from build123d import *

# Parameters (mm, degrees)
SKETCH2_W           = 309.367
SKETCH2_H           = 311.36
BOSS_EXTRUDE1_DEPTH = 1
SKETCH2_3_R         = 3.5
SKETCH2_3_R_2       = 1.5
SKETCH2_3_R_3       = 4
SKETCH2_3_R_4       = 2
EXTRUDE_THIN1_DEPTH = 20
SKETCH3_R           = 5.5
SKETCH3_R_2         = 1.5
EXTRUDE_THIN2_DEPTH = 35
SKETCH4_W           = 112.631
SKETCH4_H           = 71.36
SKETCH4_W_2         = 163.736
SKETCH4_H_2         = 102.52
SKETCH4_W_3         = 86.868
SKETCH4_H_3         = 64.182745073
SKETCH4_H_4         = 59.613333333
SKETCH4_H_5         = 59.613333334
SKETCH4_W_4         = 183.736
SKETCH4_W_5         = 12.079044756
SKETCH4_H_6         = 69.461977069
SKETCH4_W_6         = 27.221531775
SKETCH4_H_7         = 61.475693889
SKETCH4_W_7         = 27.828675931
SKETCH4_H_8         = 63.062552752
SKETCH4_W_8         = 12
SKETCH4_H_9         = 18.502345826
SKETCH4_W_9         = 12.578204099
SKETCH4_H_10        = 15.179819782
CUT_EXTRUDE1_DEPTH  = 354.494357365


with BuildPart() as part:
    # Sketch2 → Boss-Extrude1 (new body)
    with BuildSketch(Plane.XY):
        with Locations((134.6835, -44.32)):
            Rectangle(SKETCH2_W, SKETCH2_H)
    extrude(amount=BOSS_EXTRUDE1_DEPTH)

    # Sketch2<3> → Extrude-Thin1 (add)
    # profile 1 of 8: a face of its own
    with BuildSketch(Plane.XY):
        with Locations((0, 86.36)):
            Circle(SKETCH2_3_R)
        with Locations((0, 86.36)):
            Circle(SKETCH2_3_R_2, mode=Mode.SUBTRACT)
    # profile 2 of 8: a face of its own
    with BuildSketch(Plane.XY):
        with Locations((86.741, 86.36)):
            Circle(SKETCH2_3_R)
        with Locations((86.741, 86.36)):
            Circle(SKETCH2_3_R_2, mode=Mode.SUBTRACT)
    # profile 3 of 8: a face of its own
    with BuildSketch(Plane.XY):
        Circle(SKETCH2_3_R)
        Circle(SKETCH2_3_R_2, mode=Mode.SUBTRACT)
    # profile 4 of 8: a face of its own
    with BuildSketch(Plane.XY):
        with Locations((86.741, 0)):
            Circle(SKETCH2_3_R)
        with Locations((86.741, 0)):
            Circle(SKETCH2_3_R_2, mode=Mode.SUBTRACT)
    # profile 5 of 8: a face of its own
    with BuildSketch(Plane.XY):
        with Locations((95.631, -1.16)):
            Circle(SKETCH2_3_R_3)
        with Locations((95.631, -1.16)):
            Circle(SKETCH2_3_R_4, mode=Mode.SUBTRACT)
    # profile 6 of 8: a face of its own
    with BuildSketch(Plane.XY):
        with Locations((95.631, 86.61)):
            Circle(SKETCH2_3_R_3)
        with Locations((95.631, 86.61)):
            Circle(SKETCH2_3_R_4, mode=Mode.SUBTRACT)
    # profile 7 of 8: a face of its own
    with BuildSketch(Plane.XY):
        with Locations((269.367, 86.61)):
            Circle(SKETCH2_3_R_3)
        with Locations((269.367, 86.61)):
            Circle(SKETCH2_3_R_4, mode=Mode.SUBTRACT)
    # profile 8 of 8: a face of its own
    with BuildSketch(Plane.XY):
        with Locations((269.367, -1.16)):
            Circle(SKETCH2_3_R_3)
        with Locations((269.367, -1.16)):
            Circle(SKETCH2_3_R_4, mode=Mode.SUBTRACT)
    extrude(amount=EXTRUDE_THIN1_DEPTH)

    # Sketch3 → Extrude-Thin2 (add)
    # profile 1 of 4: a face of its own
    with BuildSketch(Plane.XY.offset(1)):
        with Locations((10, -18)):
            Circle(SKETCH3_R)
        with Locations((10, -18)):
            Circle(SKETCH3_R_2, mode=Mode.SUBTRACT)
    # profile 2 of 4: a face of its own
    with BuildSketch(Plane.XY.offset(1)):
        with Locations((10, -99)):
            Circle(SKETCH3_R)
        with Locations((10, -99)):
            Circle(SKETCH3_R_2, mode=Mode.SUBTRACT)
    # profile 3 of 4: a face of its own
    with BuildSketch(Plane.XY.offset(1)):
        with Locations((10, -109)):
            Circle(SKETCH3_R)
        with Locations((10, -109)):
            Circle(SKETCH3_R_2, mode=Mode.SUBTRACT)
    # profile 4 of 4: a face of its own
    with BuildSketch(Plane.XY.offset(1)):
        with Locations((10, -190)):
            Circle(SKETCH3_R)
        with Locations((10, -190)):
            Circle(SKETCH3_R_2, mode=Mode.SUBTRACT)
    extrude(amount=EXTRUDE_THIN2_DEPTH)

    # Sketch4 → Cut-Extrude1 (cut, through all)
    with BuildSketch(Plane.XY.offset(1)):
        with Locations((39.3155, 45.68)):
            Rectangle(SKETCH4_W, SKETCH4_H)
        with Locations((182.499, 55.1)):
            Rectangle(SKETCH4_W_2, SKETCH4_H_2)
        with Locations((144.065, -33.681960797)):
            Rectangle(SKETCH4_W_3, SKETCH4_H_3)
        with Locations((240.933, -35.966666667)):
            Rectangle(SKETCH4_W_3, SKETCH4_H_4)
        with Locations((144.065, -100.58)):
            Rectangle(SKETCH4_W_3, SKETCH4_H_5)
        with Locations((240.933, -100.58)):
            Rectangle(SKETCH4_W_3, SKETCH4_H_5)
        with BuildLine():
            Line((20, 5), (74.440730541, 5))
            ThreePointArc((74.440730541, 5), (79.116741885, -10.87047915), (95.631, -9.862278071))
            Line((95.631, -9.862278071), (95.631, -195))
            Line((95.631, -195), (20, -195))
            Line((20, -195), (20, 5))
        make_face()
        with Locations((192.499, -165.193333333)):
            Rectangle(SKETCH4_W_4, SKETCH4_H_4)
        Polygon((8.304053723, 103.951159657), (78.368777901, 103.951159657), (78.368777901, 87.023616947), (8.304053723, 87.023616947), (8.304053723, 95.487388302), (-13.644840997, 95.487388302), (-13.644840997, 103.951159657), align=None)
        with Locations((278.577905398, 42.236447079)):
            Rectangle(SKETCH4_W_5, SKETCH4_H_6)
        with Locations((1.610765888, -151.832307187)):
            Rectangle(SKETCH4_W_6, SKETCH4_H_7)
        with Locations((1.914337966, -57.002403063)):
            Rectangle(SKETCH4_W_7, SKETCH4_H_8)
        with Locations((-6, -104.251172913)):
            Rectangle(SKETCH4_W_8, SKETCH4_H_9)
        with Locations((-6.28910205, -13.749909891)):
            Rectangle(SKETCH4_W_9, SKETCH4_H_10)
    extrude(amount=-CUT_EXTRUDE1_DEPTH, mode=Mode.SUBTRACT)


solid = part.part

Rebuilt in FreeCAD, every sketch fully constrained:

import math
import FreeCAD as App
import Part
import Sketcher
from FreeCAD import Vector

doc = App.newDocument("Part")
body = doc.addObject("PartDesign::Body", "Body")

# Sketch on XY plane
sketch1 = body.newObject("Sketcher::SketchObject", "Sketch")
sketch1.AttachmentSupport = (doc.getObject("XY_Plane"), [""])
sketch1.MapMode = "FlatFace"
sketch1.addGeometry([
    Part.LineSegment(Vector(-20, 111, 0), Vector(-20, -200, 0)),
    Part.LineSegment(Vector(-20, -200, 0), Vector(289, -200, 0)),
    Part.LineSegment(Vector(289, -200, 0), Vector(289, 111, 0)),
    Part.LineSegment(Vector(289, 111, 0), Vector(-20, 111, 0)),
], False)
sketch1.addConstraint([
    Sketcher.Constraint("Coincident", 0, 2, 1, 1),
    Sketcher.Constraint("Coincident", 1, 2, 2, 1),
    Sketcher.Constraint("Coincident", 2, 2, 3, 1),
    Sketcher.Constraint("Coincident", 3, 2, 0, 1),
    Sketcher.Constraint("Vertical", 0),
    Sketcher.Constraint("Horizontal", 1),
    Sketcher.Constraint("Vertical", 2),
    Sketcher.Constraint("Horizontal", 3),
    Sketcher.Constraint("DistanceX", 0, 2, -1, 1, 20.0),
    Sketcher.Constraint("DistanceY", 0, 2, -1, 1, 200.0),
    Sketcher.Constraint("DistanceY", 0, 2, 0, 1, 311.36),
    Sketcher.Constraint("DistanceX", 1, 1, 1, 2, 309.367),
])
pad1 = body.newObject("PartDesign::Pad", "Pad")
pad1.Profile = sketch1
pad1.Length = 1

# Sketch on XY plane
sketch2 = body.newObject("Sketcher::SketchObject", "Sketch001")
sketch2.AttachmentSupport = (doc.getObject("XY_Plane"), [""])
sketch2.MapMode = "FlatFace"
sketch2.addGeometry([
    Part.Circle(Vector(0, 86.4, 0), Vector(0, 0, 1), 3.5),  # 0
    Part.Circle(Vector(0, 86.4, 0), Vector(0, 0, 1), 1.5),  # 1
    Part.Circle(Vector(86.7, 86.4, 0), Vector(0, 0, 1), 3.5),  # 2
    Part.Circle(Vector(86.7, 86.4, 0), Vector(0, 0, 1), 1.5),  # 3
    Part.Circle(Vector(0, 0, 0), Vector(0, 0, 1), 3.5),  # 4
    Part.Circle(Vector(0, 0, 0), Vector(0, 0, 1), 1.5),  # 5
    Part.Circle(Vector(86.7, 0, 0), Vector(0, 0, 1), 3.5),  # 6
    Part.Circle(Vector(86.7, 0, 0), Vector(0, 0, 1), 1.5),  # 7
    Part.Circle(Vector(95.6, -1.2, 0), Vector(0, 0, 1), 4),  # 8
    Part.Circle(Vector(95.6, -1.2, 0), Vector(0, 0, 1), 2),  # 9
    Part.Circle(Vector(95.6, 86.6, 0), Vector(0, 0, 1), 4),  # 10
    Part.Circle(Vector(95.6, 86.6, 0), Vector(0, 0, 1), 2),  # 11
    Part.Circle(Vector(269.4, 86.6, 0), Vector(0, 0, 1), 4),  # 12
    Part.Circle(Vector(269.4, 86.6, 0), Vector(0, 0, 1), 2),  # 13
    Part.Circle(Vector(269.4, -1.2, 0), Vector(0, 0, 1), 4),  # 14
    Part.Circle(Vector(269.4, -1.2, 0), Vector(0, 0, 1), 2),  # 15
], False)
sketch2.addConstraint([
    Sketcher.Constraint("Coincident", 4, 3, -1, 1),
    Sketcher.Constraint("Coincident", 5, 3, -1, 1),
    Sketcher.Constraint("Coincident", 1, 3, 0, 3),
    Sketcher.Constraint("Coincident", 3, 3, 2, 3),
    Sketcher.Constraint("Coincident", 7, 3, 6, 3),
    Sketcher.Constraint("Coincident", 9, 3, 8, 3),
    Sketcher.Constraint("Coincident", 11, 3, 10, 3),
    Sketcher.Constraint("Coincident", 13, 3, 12, 3),
    Sketcher.Constraint("Coincident", 15, 3, 14, 3),
    Sketcher.Constraint("Equal", 0, 2),
    Sketcher.Constraint("Equal", 1, 3),
    Sketcher.Constraint("Equal", 2, 4),
    Sketcher.Constraint("Equal", 3, 5),
    Sketcher.Constraint("Equal", 4, 6),
    Sketcher.Constraint("Equal", 5, 7),
    Sketcher.Constraint("Equal", 8, 10),
    Sketcher.Constraint("Equal", 9, 11),
    Sketcher.Constraint("Equal", 10, 12),
    Sketcher.Constraint("Equal", 11, 13),
    Sketcher.Constraint("Equal", 12, 14),
    Sketcher.Constraint("Equal", 13, 15),
    Sketcher.Constraint("PointOnObject", 0, 3, -2),
    Sketcher.Constraint("PointOnObject", 6, 3, -1),
    Sketcher.Constraint("Horizontal", 1, 3, 2, 3),
    Sketcher.Constraint("Horizontal", 11, 3, 12, 3),
    Sketcher.Constraint("Horizontal", 9, 3, 14, 3),
    Sketcher.Constraint("Vertical", 3, 3, 6, 3),
    Sketcher.Constraint("Vertical", 9, 3, 10, 3),
    Sketcher.Constraint("Vertical", 13, 3, 14, 3),
    Sketcher.Constraint("Diameter", 0, 7.0),
    Sketcher.Constraint("Diameter", 1, 3.0),
    Sketcher.Constraint("Diameter", 8, 8.0),
    Sketcher.Constraint("Diameter", 9, 4.0),
    Sketcher.Constraint("DistanceY", -1, 1, 0, 3, 86.36),
    Sketcher.Constraint("DistanceY", 8, 3, -1, 1, 1.16),
    Sketcher.Constraint("DistanceY", -1, 1, 10, 3, 86.61),
    Sketcher.Constraint("DistanceX", 6, 3, 8, 3, 8.89),
    Sketcher.Constraint("DistanceX", -1, 1, 2, 3, 86.741),
    Sketcher.Constraint("DistanceX", -1, 1, 12, 3, 269.367),
])
pad2 = body.newObject("PartDesign::Pad", "Pad001")
pad2.Profile = sketch2
pad2.Length = 20

# Sketch on XY plane
sketch3 = body.newObject("Sketcher::SketchObject", "Sketch002")
sketch3.AttachmentSupport = (doc.getObject("XY_Plane"), [""])
sketch3.MapMode = "FlatFace"
sketch3.AttachmentOffset = App.Placement(Vector(0, 0, 1), App.Rotation())
sketch3.addGeometry([
    Part.Circle(Vector(10, -18, 0), Vector(0, 0, 1), 5.5),  # 0
    Part.Circle(Vector(10, -18, 0), Vector(0, 0, 1), 1.5),  # 1
    Part.ArcOfCircle(Part.Circle(Vector(10, -99, 0), Vector(0, 0, 1), 5.5), math.radians(-65), math.radians(245)),  # 2
    Part.ArcOfCircle(Part.Circle(Vector(10, -109, 0), Vector(0, 0, 1), 5.5), math.radians(115), math.radians(425)),  # 3
    Part.Circle(Vector(10, -99, 0), Vector(0, 0, 1), 1.5),  # 4
    Part.Circle(Vector(10, -109, 0), Vector(0, 0, 1), 1.5),  # 5
    Part.Circle(Vector(10, -190, 0), Vector(0, 0, 1), 5.5),  # 6
    Part.Circle(Vector(10, -190, 0), Vector(0, 0, 1), 1.5),  # 7
], False)
sketch3.addConstraint([
    Sketcher.Constraint("Coincident", 2, 1, 3, 2),
    Sketcher.Constraint("Coincident", 3, 1, 2, 2),
    Sketcher.Constraint("Coincident", 1, 3, 0, 3),
    Sketcher.Constraint("Coincident", 4, 3, 2, 3),
    Sketcher.Constraint("Coincident", 5, 3, 3, 3),
    Sketcher.Constraint("Coincident", 7, 3, 6, 3),
    Sketcher.Constraint("Equal", 0, 2),
    Sketcher.Constraint("Equal", 2, 3),
    Sketcher.Constraint("Equal", 1, 4),
    Sketcher.Constraint("Equal", 4, 5),
    Sketcher.Constraint("Equal", 3, 6),
    Sketcher.Constraint("Equal", 5, 7),
    Sketcher.Constraint("Horizontal", 2, 1, 3, 1),
    Sketcher.Constraint("Vertical", 1, 3, 2, 3),
    Sketcher.Constraint("Vertical", 5, 3, 6, 3),
    Sketcher.Constraint("Diameter", 0, 11.0),
    Sketcher.Constraint("Diameter", 1, 3.0),
    Sketcher.Constraint("DistanceX", -1, 1, 0, 3, 10.0),
    Sketcher.Constraint("DistanceY", 0, 3, -1, 1, 18.0),
    Sketcher.Constraint("DistanceY", 2, 3, -1, 1, 99.0),
    Sketcher.Constraint("DistanceY", 3, 3, -1, 1, 109.0),
    Sketcher.Constraint("DistanceY", 6, 3, -1, 1, 190.0),
])
pad3 = body.newObject("PartDesign::Pad", "Pad002")
pad3.Profile = sketch3
pad3.Length = 35

# Sketch on XY plane
sketch4 = body.newObject("Sketcher::SketchObject", "Sketch003")
sketch4.AttachmentSupport = (doc.getObject("XY_Plane"), [""])
sketch4.MapMode = "FlatFace"
sketch4.AttachmentOffset = App.Placement(Vector(0, 0, 1), App.Rotation())
sketch4.addGeometry([
    Part.LineSegment(Vector(-17, 81, 0), Vector(-17, 10, 0)),  # 0
    Part.LineSegment(Vector(-17, 10, 0), Vector(96, 10, 0)),  # 1
    Part.LineSegment(Vector(96, 10, 0), Vector(96, 81, 0)),  # 2
    Part.LineSegment(Vector(96, 81, 0), Vector(-17, 81, 0)),  # 3
    Part.LineSegment(Vector(101, 106, 0), Vector(101, 4, 0)),  # 4
    Part.LineSegment(Vector(101, 4, 0), Vector(264, 4, 0)),  # 5
    Part.LineSegment(Vector(264, 4, 0), Vector(264, 106, 0)),  # 6
    Part.LineSegment(Vector(264, 106, 0), Vector(101, 106, 0)),  # 7
    Part.LineSegment(Vector(101, -2, 0), Vector(101, -66, 0)),  # 8
    Part.LineSegment(Vector(101, -66, 0), Vector(187, -66, 0)),  # 9
    Part.LineSegment(Vector(187, -66, 0), Vector(187, -2, 0)),  # 10
    Part.LineSegment(Vector(187, -2, 0), Vector(101, -2, 0)),  # 11
    Part.LineSegment(Vector(197, -6, 0), Vector(197, -66, 0)),  # 12
    Part.LineSegment(Vector(197, -66, 0), Vector(284, -66, 0)),  # 13
    Part.LineSegment(Vector(284, -66, 0), Vector(284, -6, 0)),  # 14
    Part.LineSegment(Vector(284, -6, 0), Vector(197, -6, 0)),  # 15
    Part.LineSegment(Vector(101, -71, 0), Vector(101, -130, 0)),  # 16
    Part.LineSegment(Vector(101, -130, 0), Vector(187, -130, 0)),  # 17
    Part.LineSegment(Vector(187, -130, 0), Vector(187, -71, 0)),  # 18
    Part.LineSegment(Vector(187, -71, 0), Vector(101, -71, 0)),  # 19
    Part.LineSegment(Vector(197, -71, 0), Vector(197, -130, 0)),  # 20
    Part.LineSegment(Vector(197, -130, 0), Vector(284, -130, 0)),  # 21
    Part.LineSegment(Vector(284, -130, 0), Vector(284, -71, 0)),  # 22
    Part.LineSegment(Vector(284, -71, 0), Vector(197, -71, 0)),  # 23
    Part.LineSegment(Vector(74, 5, 0), Vector(20, 5, 0)),  # 24
    Part.LineSegment(Vector(20, 5, 0), Vector(20, -195, 0)),  # 25
    Part.LineSegment(Vector(20, -195, 0), Vector(96, -195, 0)),  # 26
    Part.LineSegment(Vector(96, -195, 0), Vector(96, -10, 0)),  # 27
    Part.ArcOfCircle(Part.Circle(Vector(87, 0, 0), Vector(0, 0, 1), 13), math.radians(158), math.radians(312)),  # 28
    Part.LineSegment(Vector(101, -135, 0), Vector(101, -195, 0)),  # 29
    Part.LineSegment(Vector(101, -195, 0), Vector(284, -195, 0)),  # 30
    Part.LineSegment(Vector(284, -195, 0), Vector(284, -135, 0)),  # 31
    Part.LineSegment(Vector(284, -135, 0), Vector(101, -135, 0)),  # 32
    Part.LineSegment(Vector(78, 104, 0), Vector(-14, 104, 0)),  # 33
    Part.LineSegment(Vector(-14, 104, 0), Vector(-14, 95, 0)),  # 34
    Part.LineSegment(Vector(-14, 95, 0), Vector(8, 95, 0)),  # 35
    Part.LineSegment(Vector(8, 95, 0), Vector(8, 87, 0)),  # 36
    Part.LineSegment(Vector(8, 87, 0), Vector(78, 87, 0)),  # 37
    Part.LineSegment(Vector(78, 87, 0), Vector(78, 104, 0)),  # 38
    Part.LineSegment(Vector(273, 77, 0), Vector(273, 8, 0)),  # 39
    Part.LineSegment(Vector(273, 8, 0), Vector(285, 8, 0)),  # 40
    Part.LineSegment(Vector(285, 8, 0), Vector(285, 77, 0)),  # 41
    Part.LineSegment(Vector(285, 77, 0), Vector(273, 77, 0)),  # 42
    Part.LineSegment(Vector(-12, -121, 0), Vector(-12, -183, 0)),  # 43
    Part.LineSegment(Vector(-12, -183, 0), Vector(15, -183, 0)),  # 44
    Part.LineSegment(Vector(15, -183, 0), Vector(15, -121, 0)),  # 45
    Part.LineSegment(Vector(15, -121, 0), Vector(-12, -121, 0)),  # 46
    Part.LineSegment(Vector(-12, -25, 0), Vector(-12, -89, 0)),  # 47
    Part.LineSegment(Vector(-12, -89, 0), Vector(16, -89, 0)),  # 48
    Part.LineSegment(Vector(16, -89, 0), Vector(16, -25, 0)),  # 49
    Part.LineSegment(Vector(16, -25, 0), Vector(-12, -25, 0)),  # 50
    Part.LineSegment(Vector(-12, -95, 0), Vector(-12, -114, 0)),  # 51
    Part.LineSegment(Vector(-12, -114, 0), Vector(0, -114, 0)),  # 52
    Part.LineSegment(Vector(0, -114, 0), Vector(0, -95, 0)),  # 53
    Part.LineSegment(Vector(0, -95, 0), Vector(-12, -95, 0)),  # 54
    Part.LineSegment(Vector(-13, -6, 0), Vector(-13, -21, 0)),  # 55
    Part.LineSegment(Vector(-13, -21, 0), Vector(0, -21, 0)),  # 56
    Part.LineSegment(Vector(0, -21, 0), Vector(0, -6, 0)),  # 57
    Part.LineSegment(Vector(0, -6, 0), Vector(-13, -6, 0)),  # 58
], False)
sketch4.addConstraint([
    Sketcher.Constraint("Coincident", 0, 2, 1, 1),
    Sketcher.Constraint("Coincident", 1, 2, 2, 1),
    Sketcher.Constraint("Coincident", 2, 2, 3, 1),
    Sketcher.Constraint("Coincident", 3, 2, 0, 1),
    Sketcher.Constraint("Coincident", 4, 2, 5, 1),
    Sketcher.Constraint("Coincident", 5, 2, 6, 1),
    Sketcher.Constraint("Coincident", 6, 2, 7, 1),
    Sketcher.Constraint("Coincident", 7, 2, 4, 1),
    Sketcher.Constraint("Coincident", 8, 2, 9, 1),
    Sketcher.Constraint("Coincident", 9, 2, 10, 1),
    Sketcher.Constraint("Coincident", 10, 2, 11, 1),
    Sketcher.Constraint("Coincident", 11, 2, 8, 1),
    Sketcher.Constraint("Coincident", 12, 2, 13, 1),
    Sketcher.Constraint("Coincident", 13, 2, 14, 1),
    Sketcher.Constraint("Coincident", 14, 2, 15, 1),
    Sketcher.Constraint("Coincident", 15, 2, 12, 1),
    Sketcher.Constraint("Coincident", 16, 2, 17, 1),
    Sketcher.Constraint("Coincident", 17, 2, 18, 1),
    Sketcher.Constraint("Coincident", 18, 2, 19, 1),
    Sketcher.Constraint("Coincident", 19, 2, 16, 1),
    Sketcher.Constraint("Coincident", 20, 2, 21, 1),
    Sketcher.Constraint("Coincident", 21, 2, 22, 1),
    Sketcher.Constraint("Coincident", 22, 2, 23, 1),
    Sketcher.Constraint("Coincident", 23, 2, 20, 1),
    Sketcher.Constraint("Coincident", 24, 2, 25, 1),
    Sketcher.Constraint("Coincident", 25, 2, 26, 1),
    Sketcher.Constraint("Coincident", 26, 2, 27, 1),
    Sketcher.Constraint("Coincident", 27, 2, 28, 2),
    Sketcher.Constraint("Coincident", 28, 1, 24, 1),
    Sketcher.Constraint("Coincident", 29, 2, 30, 1),
    Sketcher.Constraint("Coincident", 30, 2, 31, 1),
    Sketcher.Constraint("Coincident", 31, 2, 32, 1),
    Sketcher.Constraint("Coincident", 32, 2, 29, 1),
    Sketcher.Constraint("Coincident", 33, 2, 34, 1),
    Sketcher.Constraint("Coincident", 34, 2, 35, 1),
    Sketcher.Constraint("Coincident", 35, 2, 36, 1),
    Sketcher.Constraint("Coincident", 36, 2, 37, 1),
    Sketcher.Constraint("Coincident", 37, 2, 38, 1),
    Sketcher.Constraint("Coincident", 38, 2, 33, 1),
    Sketcher.Constraint("Coincident", 39, 2, 40, 1),
    Sketcher.Constraint("Coincident", 40, 2, 41, 1),
    Sketcher.Constraint("Coincident", 41, 2, 42, 1),
    Sketcher.Constraint("Coincident", 42, 2, 39, 1),
    Sketcher.Constraint("Coincident", 43, 2, 44, 1),
    Sketcher.Constraint("Coincident", 44, 2, 45, 1),
    Sketcher.Constraint("Coincident", 45, 2, 46, 1),
    Sketcher.Constraint("Coincident", 46, 2, 43, 1),
    Sketcher.Constraint("Coincident", 47, 2, 48, 1),
    Sketcher.Constraint("Coincident", 48, 2, 49, 1),
    Sketcher.Constraint("Coincident", 49, 2, 50, 1),
    Sketcher.Constraint("Coincident", 50, 2, 47, 1),
    Sketcher.Constraint("Coincident", 51, 2, 52, 1),
    Sketcher.Constraint("Coincident", 52, 2, 53, 1),
    Sketcher.Constraint("Coincident", 53, 2, 54, 1),
    Sketcher.Constraint("Coincident", 54, 2, 51, 1),
    Sketcher.Constraint("Coincident", 55, 2, 56, 1),
    Sketcher.Constraint("Coincident", 56, 2, 57, 1),
    Sketcher.Constraint("Coincident", 57, 2, 58, 1),
    Sketcher.Constraint("Coincident", 58, 2, 55, 1),
    Sketcher.Constraint("Vertical", 0),
    Sketcher.Constraint("Horizontal", 1),
    Sketcher.Constraint("Vertical", 2),
    Sketcher.Constraint("Horizontal", 3),
    Sketcher.Constraint("Vertical", 4),
    Sketcher.Constraint("Horizontal", 5),
    Sketcher.Constraint("Vertical", 6),
    Sketcher.Constraint("Horizontal", 7),
    Sketcher.Constraint("Vertical", 8),
    Sketcher.Constraint("Horizontal", 9),
    Sketcher.Constraint("Vertical", 10),
    Sketcher.Constraint("Horizontal", 11),
    Sketcher.Constraint("Vertical", 12),
    Sketcher.Constraint("Horizontal", 13),
    Sketcher.Constraint("Vertical", 14),
    Sketcher.Constraint("Horizontal", 15),
    Sketcher.Constraint("Vertical", 16),
    Sketcher.Constraint("Horizontal", 17),
    Sketcher.Constraint("Vertical", 18),
    Sketcher.Constraint("Horizontal", 19),
    Sketcher.Constraint("Vertical", 20),
    Sketcher.Constraint("Horizontal", 21),
    Sketcher.Constraint("Vertical", 22),
    Sketcher.Constraint("Horizontal", 23),
    Sketcher.Constraint("Horizontal", 24),
    Sketcher.Constraint("Vertical", 25),
    Sketcher.Constraint("Horizontal", 26),
    Sketcher.Constraint("Vertical", 27),
    Sketcher.Constraint("Vertical", 29),
    Sketcher.Constraint("Horizontal", 30),
    Sketcher.Constraint("Vertical", 31),
    Sketcher.Constraint("Horizontal", 32),
    Sketcher.Constraint("Horizontal", 33),
    Sketcher.Constraint("Vertical", 34),
    Sketcher.Constraint("Horizontal", 35),
    Sketcher.Constraint("Vertical", 36),
    Sketcher.Constraint("Horizontal", 37),
    Sketcher.Constraint("Vertical", 38),
    Sketcher.Constraint("Vertical", 39),
    Sketcher.Constraint("Horizontal", 40),
    Sketcher.Constraint("Vertical", 41),
    Sketcher.Constraint("Horizontal", 42),
    Sketcher.Constraint("Vertical", 43),
    Sketcher.Constraint("Horizontal", 44),
    Sketcher.Constraint("Vertical", 45),
    Sketcher.Constraint("Horizontal", 46),
    Sketcher.Constraint("Vertical", 47),
    Sketcher.Constraint("Horizontal", 48),
    Sketcher.Constraint("Vertical", 49),
    Sketcher.Constraint("Horizontal", 50),
    Sketcher.Constraint("Vertical", 51),
    Sketcher.Constraint("Horizontal", 52),
    Sketcher.Constraint("Vertical", 53),
    Sketcher.Constraint("Horizontal", 54),
    Sketcher.Constraint("Vertical", 55),
    Sketcher.Constraint("Horizontal", 56),
    Sketcher.Constraint("Vertical", 57),
    Sketcher.Constraint("Horizontal", 58),
    Sketcher.Constraint("PointOnObject", 28, 3, -1),
    Sketcher.Constraint("PointOnObject", 52, 2, -2),
    Sketcher.Constraint("PointOnObject", 56, 2, -2),
    Sketcher.Constraint("Horizontal", 9, 2, 12, 2),
    Sketcher.Constraint("Horizontal", 17, 2, 20, 2),
    Sketcher.Constraint("Horizontal", 19, 2, 22, 2),
    Sketcher.Constraint("Horizontal", 26, 2, 29, 2),
    Sketcher.Constraint("Horizontal", 15, 2, 57, 2),
    Sketcher.Constraint("Vertical", 7, 2, 8, 2),
    Sketcher.Constraint("Vertical", 11, 2, 16, 2),
    Sketcher.Constraint("Vertical", 10, 2, 17, 2),
    Sketcher.Constraint("Vertical", 15, 2, 20, 2),
    Sketcher.Constraint("Vertical", 14, 2, 21, 2),
    Sketcher.Constraint("Vertical", 2, 2, 26, 2),
    Sketcher.Constraint("Vertical", 19, 2, 29, 2),
    Sketcher.Constraint("Vertical", 22, 2, 30, 2),
    Sketcher.Constraint("Vertical", 46, 2, 47, 2),
    Sketcher.Constraint("Vertical", 50, 2, 51, 2),
    Sketcher.Constraint("Equal", 11, 13),
    Sketcher.Constraint("Equal", 14, 16),
    Sketcher.Constraint("Equal", 22, 29),
    Sketcher.Constraint("Equal", 34, 36),
    Sketcher.Constraint("DistanceX", 52, 1, 52, 2, 12.0),
    Sketcher.Constraint("DistanceY", 25, 2, 25, 1, 200.0),
    Sketcher.Constraint("DistanceX", 0, 2, -1, 1, 17.0),
    Sketcher.Constraint("DistanceY", -1, 1, 0, 2, 10.0),
    Sketcher.Constraint("DistanceX", -1, 1, 24, 2, 20.0),
    Sketcher.Constraint("DistanceY", -1, 1, 24, 2, 5.0),
    Sketcher.Constraint("DistanceY", 53, 2, -1, 1, 95.0),
    Sketcher.Constraint("DistanceX", 1, 2, 4, 2, 5.0),
    Sketcher.Constraint("DistanceY", 2, 2, 6, 2, 25.0),
    Sketcher.Constraint("DistanceX", 9, 2, 12, 2, 10.0),
    Sketcher.Constraint("DistanceX", 5, 2, 13, 2, 20.0),
    Sketcher.Constraint("DistanceY", 14, 2, 5, 2, 10.0),
    Sketcher.Constraint("DistanceY", 18, 2, 9, 2, 5.0),
    Sketcher.Constraint("DistanceY", 31, 2, 21, 2, 5.0),
    Sketcher.Constraint("DistanceY", 0, 2, 0, 1, 71.36),
    Sketcher.Constraint("DistanceY", 4, 2, 4, 1, 102.52),
    Sketcher.Constraint("DistanceX", 1, 1, 1, 2, 112.631),
    Sketcher.Constraint("DistanceX", 5, 1, 5, 2, 163.736),
    Sketcher.Constraint("DistanceX", 28, 3, 1, 2, 8.89),
    Sketcher.Constraint("Radius", 28, 13.277674),
    Sketcher.Constraint("DistanceX", 33, 2, 33, 1, 92.013619),
    Sketcher.Constraint("DistanceX", 44, 1, 44, 2, 27.221532),
    Sketcher.Constraint("DistanceY", 34, 2, 34, 1, 8.463771),
    Sketcher.Constraint("DistanceY", 55, 2, 55, 1, 15.17982),
    Sketcher.Constraint("DistanceX", 35, 1, 35, 2, 21.948895),
    Sketcher.Constraint("DistanceX", 40, 1, 40, 2, 12.079045),
    Sketcher.Constraint("DistanceX", 48, 1, 48, 2, 27.828676),
    Sketcher.Constraint("DistanceX", 56, 1, 56, 2, 12.578204),
    Sketcher.Constraint("DistanceY", 8, 2, 8, 1, 64.182745),
    Sketcher.Constraint("DistanceY", 39, 2, 39, 1, 69.461977),
    Sketcher.Constraint("DistanceY", 43, 2, 43, 1, 61.475694),
    Sketcher.Constraint("DistanceY", 47, 2, 47, 1, 63.062553),
    Sketcher.Constraint("DistanceY", 51, 2, 51, 1, 18.502346),
    Sketcher.Constraint("DistanceX", 33, 2, -1, 1, 13.644841),
    Sketcher.Constraint("DistanceY", -1, 1, 33, 2, 103.95116),
    Sketcher.Constraint("DistanceY", -1, 1, 39, 2, 7.505459),
    Sketcher.Constraint("DistanceY", 45, 2, -1, 1, 121.09446),
    Sketcher.Constraint("DistanceY", 47, 2, -1, 1, 88.533679),
    Sketcher.Constraint("DistanceX", -1, 1, 39, 2, 272.538383),
])
pocket1 = body.newObject("PartDesign::Pocket", "Pocket")
pocket1.Profile = sketch4
pocket1.Type = "ThroughAll"

doc.recompute()
